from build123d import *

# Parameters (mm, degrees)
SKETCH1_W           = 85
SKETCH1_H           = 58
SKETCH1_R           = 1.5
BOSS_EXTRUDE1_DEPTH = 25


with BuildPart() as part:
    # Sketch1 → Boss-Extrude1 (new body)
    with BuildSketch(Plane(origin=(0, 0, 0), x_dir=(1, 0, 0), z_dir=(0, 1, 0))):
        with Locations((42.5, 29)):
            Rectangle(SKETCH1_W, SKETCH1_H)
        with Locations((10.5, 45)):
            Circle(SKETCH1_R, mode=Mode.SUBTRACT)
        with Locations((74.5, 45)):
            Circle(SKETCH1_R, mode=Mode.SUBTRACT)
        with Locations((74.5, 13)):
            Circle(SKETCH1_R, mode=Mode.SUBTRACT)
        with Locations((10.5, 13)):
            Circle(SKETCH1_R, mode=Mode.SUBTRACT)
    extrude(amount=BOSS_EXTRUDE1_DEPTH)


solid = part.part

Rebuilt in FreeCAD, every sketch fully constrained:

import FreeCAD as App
import Part
import Sketcher
from FreeCAD import Vector

doc = App.newDocument("Part")
body = doc.addObject("PartDesign::Body", "Body")

# Sketch on XZ plane
sketch1 = doc.addObject("Sketcher::SketchObject", "Sketch")
body.addObject(sketch1)
sketch1.AttachmentSupport = (doc.XZ_Plane, [""])
sketch1.MapMode = "FlatFace"
sketch1.addGeometry([
    Part.LineSegment(Vector(0, -58, 0), Vector(0, 0, 0)),  # 0
    Part.LineSegment(Vector(0, 0, 0), Vector(85, 0, 0)),  # 1
    Part.LineSegment(Vector(85, 0, 0), Vector(85, -58, 0)),  # 2
    Part.LineSegment(Vector(85, -58, 0), Vector(0, -58, 0)),  # 3
    Part.Circle(Vector(10.5, -13, 0), Vector(0, 0, 1), 1.5),  # 4
    Part.Circle(Vector(74.5, -13, 0), Vector(0, 0, 1), 1.5),  # 5
    Part.Circle(Vector(10.5, -45, 0), Vector(0, 0, 1), 1.5),  # 6
    Part.Circle(Vector(74.5, -45, 0), Vector(0, 0, 1), 1.5),  # 7
], False)
sketch1.addConstraint([
    Sketcher.Constraint("Coincident", 0, 2, 1, 1),
    Sketcher.Constraint("Coincident", 1, 2, 2, 1),
    Sketcher.Constraint("Coincident", 2, 2, 3, 1),
    Sketcher.Constraint("Coincident", 3, 2, 0, 1),
    Sketcher.Constraint("Vertical", 0),
    Sketcher.Constraint("Horizontal", 1),
    Sketcher.Constraint("Vertical", 2),
    Sketcher.Constraint("Horizontal", 3),
    Sketcher.Constraint("Coincident", 0, 2, -1, 1),
    Sketcher.Constraint("Equal", 4, 5),
    Sketcher.Constraint("Equal", 5, 6),
    Sketcher.Constraint("Equal", 6, 7),
    Sketcher.Constraint("Horizontal", 4, 3, 5, 3),
    Sketcher.Constraint("Horizontal", 6, 3, 7, 3),
    Sketcher.Constraint("Vertical", 4, 3, 6, 3),
    Sketcher.Constraint("Vertical", 5, 3, 7, 3),
    Sketcher.Constraint("Diameter", 4, 3.0),
    Sketcher.Constraint("DistanceX", 1, 1, 1, 2, 85.0),
    Sketcher.Constraint("DistanceY", 0, 1, 0, 2, 58.0),
    Sketcher.Constraint("DistanceY", 4, 3, -1, 1, 13.0),
    Sketcher.Constraint("DistanceY", 6, 3, -1, 1, 45.0),
    Sketcher.Constraint("DistanceX", 4, 3, 5, 3, 64.0),
    Sketcher.Constraint("DistanceX", -1, 1, 4, 3, 10.5),
])
pad1 = doc.addObject("PartDesign::Pad", "Pad")
body.addObject(pad1)
pad1.Profile = sketch1
pad1.Length = 25
pad1.Reversed = True

doc.recompute()
